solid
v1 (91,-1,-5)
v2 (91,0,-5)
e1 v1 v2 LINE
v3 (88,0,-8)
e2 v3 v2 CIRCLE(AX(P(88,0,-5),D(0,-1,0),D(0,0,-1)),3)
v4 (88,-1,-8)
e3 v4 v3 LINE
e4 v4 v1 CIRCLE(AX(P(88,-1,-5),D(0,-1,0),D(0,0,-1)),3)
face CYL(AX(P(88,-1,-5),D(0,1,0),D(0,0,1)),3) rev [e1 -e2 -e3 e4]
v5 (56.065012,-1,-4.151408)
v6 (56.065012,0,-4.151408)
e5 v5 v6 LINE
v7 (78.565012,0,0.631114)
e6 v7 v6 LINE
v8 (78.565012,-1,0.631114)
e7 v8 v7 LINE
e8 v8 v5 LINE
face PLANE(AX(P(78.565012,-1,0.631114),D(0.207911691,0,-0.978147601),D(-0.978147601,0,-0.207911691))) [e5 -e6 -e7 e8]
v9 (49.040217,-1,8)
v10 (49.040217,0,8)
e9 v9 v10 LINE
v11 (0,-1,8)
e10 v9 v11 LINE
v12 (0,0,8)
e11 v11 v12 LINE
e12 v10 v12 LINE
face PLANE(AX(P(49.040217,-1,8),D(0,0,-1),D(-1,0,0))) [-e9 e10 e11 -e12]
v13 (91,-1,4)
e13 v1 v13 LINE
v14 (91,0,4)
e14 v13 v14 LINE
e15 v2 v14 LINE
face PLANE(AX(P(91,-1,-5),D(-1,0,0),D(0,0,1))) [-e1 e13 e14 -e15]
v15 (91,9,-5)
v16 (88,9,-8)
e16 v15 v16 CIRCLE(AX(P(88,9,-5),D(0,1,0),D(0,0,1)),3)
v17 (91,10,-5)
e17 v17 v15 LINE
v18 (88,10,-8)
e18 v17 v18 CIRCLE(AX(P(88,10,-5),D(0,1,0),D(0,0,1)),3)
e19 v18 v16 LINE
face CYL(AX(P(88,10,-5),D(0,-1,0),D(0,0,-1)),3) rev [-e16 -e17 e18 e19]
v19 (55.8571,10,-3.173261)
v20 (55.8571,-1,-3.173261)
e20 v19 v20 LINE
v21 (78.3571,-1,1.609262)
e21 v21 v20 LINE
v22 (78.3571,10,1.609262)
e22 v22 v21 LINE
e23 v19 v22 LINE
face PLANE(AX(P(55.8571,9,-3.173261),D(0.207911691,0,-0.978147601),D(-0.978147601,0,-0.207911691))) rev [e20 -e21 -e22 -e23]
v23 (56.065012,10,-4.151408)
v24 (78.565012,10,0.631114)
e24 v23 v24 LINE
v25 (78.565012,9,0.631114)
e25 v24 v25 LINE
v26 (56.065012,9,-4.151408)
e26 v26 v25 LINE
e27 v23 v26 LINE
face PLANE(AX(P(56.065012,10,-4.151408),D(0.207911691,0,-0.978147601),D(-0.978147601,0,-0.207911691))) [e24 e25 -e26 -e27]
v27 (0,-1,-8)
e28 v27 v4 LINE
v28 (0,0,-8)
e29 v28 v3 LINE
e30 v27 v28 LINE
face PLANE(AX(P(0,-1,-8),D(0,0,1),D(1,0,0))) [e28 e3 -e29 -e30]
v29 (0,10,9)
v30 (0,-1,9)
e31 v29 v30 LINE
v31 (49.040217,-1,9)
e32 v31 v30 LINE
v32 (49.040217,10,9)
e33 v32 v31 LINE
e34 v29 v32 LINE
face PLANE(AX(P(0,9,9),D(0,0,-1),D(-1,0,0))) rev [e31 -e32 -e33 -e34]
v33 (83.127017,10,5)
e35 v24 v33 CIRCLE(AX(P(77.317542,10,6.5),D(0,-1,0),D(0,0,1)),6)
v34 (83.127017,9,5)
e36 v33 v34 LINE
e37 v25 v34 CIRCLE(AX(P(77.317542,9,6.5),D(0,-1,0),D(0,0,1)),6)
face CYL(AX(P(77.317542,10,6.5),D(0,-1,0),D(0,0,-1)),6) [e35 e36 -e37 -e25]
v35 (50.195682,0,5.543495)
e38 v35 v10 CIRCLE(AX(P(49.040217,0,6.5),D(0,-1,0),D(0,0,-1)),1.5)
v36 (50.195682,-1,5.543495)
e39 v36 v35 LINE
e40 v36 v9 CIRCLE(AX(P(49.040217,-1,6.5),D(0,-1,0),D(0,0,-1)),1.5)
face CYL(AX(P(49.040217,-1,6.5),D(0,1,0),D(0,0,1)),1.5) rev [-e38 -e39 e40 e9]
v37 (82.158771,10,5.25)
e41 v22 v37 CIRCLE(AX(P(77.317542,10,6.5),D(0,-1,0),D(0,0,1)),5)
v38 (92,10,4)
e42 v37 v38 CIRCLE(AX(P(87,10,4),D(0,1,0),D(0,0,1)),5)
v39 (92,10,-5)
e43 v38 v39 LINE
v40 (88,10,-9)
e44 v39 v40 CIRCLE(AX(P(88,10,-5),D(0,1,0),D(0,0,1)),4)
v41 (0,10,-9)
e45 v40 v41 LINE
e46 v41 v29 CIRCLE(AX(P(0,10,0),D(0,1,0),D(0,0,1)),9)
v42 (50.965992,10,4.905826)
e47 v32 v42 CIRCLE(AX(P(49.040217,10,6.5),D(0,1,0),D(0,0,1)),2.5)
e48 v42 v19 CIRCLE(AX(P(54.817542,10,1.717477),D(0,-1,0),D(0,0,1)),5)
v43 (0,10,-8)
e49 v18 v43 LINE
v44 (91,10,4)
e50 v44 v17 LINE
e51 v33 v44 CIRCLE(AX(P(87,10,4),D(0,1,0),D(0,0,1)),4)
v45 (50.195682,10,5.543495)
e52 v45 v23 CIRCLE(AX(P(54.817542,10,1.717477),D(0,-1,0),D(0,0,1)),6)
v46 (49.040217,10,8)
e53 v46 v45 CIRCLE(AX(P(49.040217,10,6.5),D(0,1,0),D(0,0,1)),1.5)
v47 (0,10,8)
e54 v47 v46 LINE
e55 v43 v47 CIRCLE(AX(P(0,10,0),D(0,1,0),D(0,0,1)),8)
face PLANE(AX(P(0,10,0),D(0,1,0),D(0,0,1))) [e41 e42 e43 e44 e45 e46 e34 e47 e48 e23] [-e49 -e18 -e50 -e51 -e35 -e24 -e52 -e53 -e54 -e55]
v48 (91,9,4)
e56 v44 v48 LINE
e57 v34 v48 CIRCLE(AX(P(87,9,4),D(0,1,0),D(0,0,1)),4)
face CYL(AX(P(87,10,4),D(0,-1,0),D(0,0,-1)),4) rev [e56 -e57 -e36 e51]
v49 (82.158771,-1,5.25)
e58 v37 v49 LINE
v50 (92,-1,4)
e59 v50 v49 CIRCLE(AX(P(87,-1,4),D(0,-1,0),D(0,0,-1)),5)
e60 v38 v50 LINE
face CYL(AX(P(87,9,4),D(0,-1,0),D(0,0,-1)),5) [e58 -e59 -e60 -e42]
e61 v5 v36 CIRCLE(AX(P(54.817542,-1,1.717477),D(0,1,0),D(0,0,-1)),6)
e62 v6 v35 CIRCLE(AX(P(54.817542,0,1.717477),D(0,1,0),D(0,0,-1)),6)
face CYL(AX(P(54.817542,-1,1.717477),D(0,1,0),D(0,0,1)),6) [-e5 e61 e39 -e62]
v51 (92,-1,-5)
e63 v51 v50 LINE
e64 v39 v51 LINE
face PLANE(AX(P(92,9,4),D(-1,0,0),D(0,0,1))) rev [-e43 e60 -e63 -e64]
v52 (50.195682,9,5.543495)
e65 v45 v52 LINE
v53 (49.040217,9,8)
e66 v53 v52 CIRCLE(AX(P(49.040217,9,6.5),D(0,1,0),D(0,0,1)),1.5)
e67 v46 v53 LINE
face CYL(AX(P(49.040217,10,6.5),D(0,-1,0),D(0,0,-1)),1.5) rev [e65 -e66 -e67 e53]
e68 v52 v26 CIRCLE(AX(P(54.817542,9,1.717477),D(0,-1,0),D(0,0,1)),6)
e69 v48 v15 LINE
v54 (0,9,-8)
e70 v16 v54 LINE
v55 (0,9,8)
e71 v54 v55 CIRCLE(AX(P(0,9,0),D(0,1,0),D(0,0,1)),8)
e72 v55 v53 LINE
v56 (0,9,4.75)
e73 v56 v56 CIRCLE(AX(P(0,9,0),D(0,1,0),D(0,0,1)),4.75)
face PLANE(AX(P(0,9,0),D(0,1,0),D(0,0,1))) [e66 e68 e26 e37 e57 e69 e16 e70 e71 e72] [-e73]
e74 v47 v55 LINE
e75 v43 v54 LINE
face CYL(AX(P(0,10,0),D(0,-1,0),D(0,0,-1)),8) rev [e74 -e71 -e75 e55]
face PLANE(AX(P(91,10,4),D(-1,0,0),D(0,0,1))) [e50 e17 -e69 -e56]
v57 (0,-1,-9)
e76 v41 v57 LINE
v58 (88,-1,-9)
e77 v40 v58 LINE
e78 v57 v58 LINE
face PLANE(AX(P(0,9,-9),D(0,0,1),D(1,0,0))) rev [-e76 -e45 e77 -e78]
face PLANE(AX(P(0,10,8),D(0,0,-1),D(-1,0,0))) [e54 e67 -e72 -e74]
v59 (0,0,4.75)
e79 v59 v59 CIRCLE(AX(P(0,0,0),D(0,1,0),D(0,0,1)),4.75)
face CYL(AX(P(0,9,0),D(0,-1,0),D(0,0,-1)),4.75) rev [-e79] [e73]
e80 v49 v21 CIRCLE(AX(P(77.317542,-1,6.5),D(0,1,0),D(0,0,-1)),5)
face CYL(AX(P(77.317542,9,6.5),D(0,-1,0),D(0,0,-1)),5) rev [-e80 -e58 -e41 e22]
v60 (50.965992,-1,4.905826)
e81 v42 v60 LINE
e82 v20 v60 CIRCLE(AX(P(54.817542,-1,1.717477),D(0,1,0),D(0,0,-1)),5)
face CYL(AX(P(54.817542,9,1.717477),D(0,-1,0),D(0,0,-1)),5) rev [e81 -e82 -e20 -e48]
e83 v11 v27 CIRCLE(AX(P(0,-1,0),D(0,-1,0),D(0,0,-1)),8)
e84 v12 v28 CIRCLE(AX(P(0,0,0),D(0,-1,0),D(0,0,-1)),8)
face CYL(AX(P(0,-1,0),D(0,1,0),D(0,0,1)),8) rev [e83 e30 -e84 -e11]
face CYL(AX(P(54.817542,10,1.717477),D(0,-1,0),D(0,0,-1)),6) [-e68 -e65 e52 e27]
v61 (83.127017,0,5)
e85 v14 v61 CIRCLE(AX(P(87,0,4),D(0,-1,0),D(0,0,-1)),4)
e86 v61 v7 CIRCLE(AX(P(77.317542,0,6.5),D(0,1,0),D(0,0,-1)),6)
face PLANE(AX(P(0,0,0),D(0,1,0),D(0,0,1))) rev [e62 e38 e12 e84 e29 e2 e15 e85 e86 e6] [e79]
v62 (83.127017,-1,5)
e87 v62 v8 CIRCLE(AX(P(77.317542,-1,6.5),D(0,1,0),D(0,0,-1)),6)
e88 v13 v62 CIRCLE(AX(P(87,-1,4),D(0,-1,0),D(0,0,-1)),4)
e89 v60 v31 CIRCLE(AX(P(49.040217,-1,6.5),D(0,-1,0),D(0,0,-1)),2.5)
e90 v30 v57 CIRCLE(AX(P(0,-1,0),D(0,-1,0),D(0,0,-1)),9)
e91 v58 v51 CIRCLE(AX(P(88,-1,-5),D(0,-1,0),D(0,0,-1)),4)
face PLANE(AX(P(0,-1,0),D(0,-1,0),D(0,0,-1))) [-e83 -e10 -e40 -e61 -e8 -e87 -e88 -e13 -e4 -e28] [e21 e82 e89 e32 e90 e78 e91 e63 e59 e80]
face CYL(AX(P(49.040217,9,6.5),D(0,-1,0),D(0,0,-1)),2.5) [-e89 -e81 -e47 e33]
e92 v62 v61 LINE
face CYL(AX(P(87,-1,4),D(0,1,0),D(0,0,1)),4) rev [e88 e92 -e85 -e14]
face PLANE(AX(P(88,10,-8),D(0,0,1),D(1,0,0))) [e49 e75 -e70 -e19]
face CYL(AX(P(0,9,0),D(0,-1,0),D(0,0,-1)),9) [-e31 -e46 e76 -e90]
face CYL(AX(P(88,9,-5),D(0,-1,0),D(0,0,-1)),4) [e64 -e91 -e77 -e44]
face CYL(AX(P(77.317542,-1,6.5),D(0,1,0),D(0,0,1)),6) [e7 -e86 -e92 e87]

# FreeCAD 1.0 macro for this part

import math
import FreeCAD as App
import Part
import Sketcher

V = App.Vector
Q = App.Units.Quantity

doc = App.newDocument("Part")
body = doc.addObject("PartDesign::Body", "Body")

# Sketch on XZ plane
sketch1 = body.newObject("Sketcher::SketchObject", "Sketch")
sketch1.AttachmentSupport = (doc.getObject("XZ_Plane"), [""])
sketch1.MapMode = "FlatFace"
sketch1.addGeometry([
    Part.LineSegment(V(55.8571, -3.173261, 0), V(78.3571, 1.609262, 0)),  # 0
    Part.ArcOfCircle(Part.Circle(V(77.317542, 6.5, 0), V(0, 0, 1), 5), math.radians(-78), math.radians(-14.477512)),  # 1
    Part.ArcOfCircle(Part.Circle(V(87, 4, 0), V(0, 0, 1), 5), math.radians(0), math.radians(165.522488)),  # 2
    Part.LineSegment(V(92, 4, 0), V(92, -5, 0)),  # 3
    Part.ArcOfCircle(Part.Circle(V(88, -5, 0), V(0, 0, 1), 4), math.radians(-90), math.radians(0)),  # 4
    Part.LineSegment(V(88, -9, 0), V(0, -9, 0)),  # 5
    Part.ArcOfCircle(Part.Circle(V(0, 0, 0), V(0, 0, 1), 9), math.radians(90), math.radians(270)),  # 6
    Part.LineSegment(V(0, 9, 0), V(49.040217, 9, 0)),  # 7
    Part.ArcOfCircle(Part.Circle(V(49.040217, 6.5, 0), V(0, 0, 1), 2.5), math.radians(-39.618272), math.radians(90)),  # 8
    Part.ArcOfCircle(Part.Circle(V(54.817542, 1.717477, 0), V(0, 0, 1), 5), math.radians(140.381728), math.radians(282)),  # 9
    Part.Circle(V(0, 0, 0), V(0, 0, 1), 4.75),  # 10
], False)
sketch1.addConstraint([
    Sketcher.Constraint("Tangent", 0, 2, 1, 1),
    Sketcher.Constraint("Tangent", 1, 2, 2, 2),
    Sketcher.Constraint("Tangent", 2, 1, 3, 1),
    Sketcher.Constraint("Tangent", 3, 2, 4, 2),
    Sketcher.Constraint("Tangent", 4, 1, 5, 1),
    Sketcher.Constraint("Tangent", 5, 2, 6, 2),
    Sketcher.Constraint("Tangent", 6, 1, 7, 1),
    Sketcher.Constraint("Tangent", 7, 2, 8, 2),
    Sketcher.Constraint("Tangent", 8, 1, 9, 1),
    Sketcher.Constraint("Tangent", 9, 2, 0, 1),
    Sketcher.Constraint("Vertical", 3),
    Sketcher.Constraint("Horizontal", 5),
    Sketcher.Constraint("Horizontal", 7),
    Sketcher.Constraint("Coincident", 6, 3, -1, 1),
    Sketcher.Constraint("Coincident", 10, 3, -1, 1),
    Sketcher.Constraint("Equal", 1, 2),
    Sketcher.Constraint("Equal", 2, 9),
    Sketcher.Constraint("Horizontal", 1, 3, 8, 3),
    Sketcher.Constraint("Radius", 1, 5.0),
    Sketcher.Constraint("Radius", 4, 4.0),
    Sketcher.Constraint("Radius", 6, 9.0),
    Sketcher.Constraint("Diameter", 10, 9.5),
    Sketcher.Constraint("Radius", 8, 2.5),
    Sketcher.Constraint("DistanceX", 5, 2, 5, 1, 88.0),
    Sketcher.Constraint("DistanceY", 3, 2, 3, 1, 9.0),
    Sketcher.Constraint("Angle", 0, Q("12 deg")),
    Sketcher.Constraint("DistanceX", 9, 3, 1, 3, 22.5),
])
pad1 = body.newObject("PartDesign::Pad", "Pad")
pad1.Profile = sketch1
pad1.Length = 9
pad1.Reversed = True

# Sketch on XZ plane
sketch2 = body.newObject("Sketcher::SketchObject", "Sketch001")
sketch2.AttachmentSupport = (doc.getObject("XZ_Plane"), [""])
sketch2.MapMode = "FlatFace"
sketch2.AttachmentOffset = App.Placement(V(0, 0, -9), App.Rotation())
sketch2.addGeometry([
    Part.LineSegment(V(0, 9, 0), V(49.040217, 9, 0)),  # 0
    Part.ArcOfCircle(Part.Circle(V(49.040217, 6.5, 0), V(0, 0, 1), 2.5), math.radians(-39.618272), math.radians(90)),  # 1
    Part.ArcOfCircle(Part.Circle(V(54.817542, 1.717477, 0), V(0, 0, 1), 5), math.radians(140.381728), math.radians(282)),  # 2
    Part.LineSegment(V(55.8571, -3.173261, 0), V(78.3571, 1.609262, 0)),  # 3
    Part.ArcOfCircle(Part.Circle(V(77.317542, 6.5, 0), V(0, 0, 1), 5), math.radians(-78), math.radians(-14.477512)),  # 4
    Part.ArcOfCircle(Part.Circle(V(87, 4, 0), V(0, 0, 1), 5), math.radians(0), math.radians(165.522488)),  # 5
    Part.LineSegment(V(92, 4, 0), V(92, -5, 0)),  # 6
    Part.ArcOfCircle(Part.Circle(V(88, -5, 0), V(0, 0, 1), 4), math.radians(-90), math.radians(0)),  # 7
    Part.LineSegment(V(88, -9, 0), V(0, -9, 0)),  # 8
    Part.ArcOfCircle(Part.Circle(V(0, 0, 0), V(0, 0, 1), 9), math.radians(90), math.radians(270)),  # 9
    Part.LineSegment(V(0, -8, 0), V(88, -8, 0)),  # 10
    Part.ArcOfCircle(Part.Circle(V(88, -5, 0), V(0, 0, 1), 3), math.radians(-90), math.radians(0)),  # 11
    Part.LineSegment(V(91, -5, 0), V(91, 4, 0)),  # 12
    Part.ArcOfCircle(Part.Circle(V(87, 4, 0), V(0, 0, 1), 4), math.radians(0), math.radians(165.522488)),  # 13
    Part.ArcOfCircle(Part.Circle(V(77.317542, 6.5, 0), V(0, 0, 1), 6), math.radians(-78), math.radians(-14.477512)),  # 14
    Part.LineSegment(V(78.565012, 0.631114, 0), V(56.065012, -4.151408, 0)),  # 15
    Part.ArcOfCircle(Part.Circle(V(54.817542, 1.717477, 0), V(0, 0, 1), 6), math.radians(140.381728), math.radians(282)),  # 16
    Part.ArcOfCircle(Part.Circle(V(49.040217, 6.5, 0), V(0, 0, 1), 1.5), math.radians(-39.618272), math.radians(90)),  # 17
    Part.LineSegment(V(49.040217, 8, 0), V(0, 8, 0)),  # 18
    Part.ArcOfCircle(Part.Circle(V(0, 0, 0), V(0, 0, 1), 8), math.radians(90), math.radians(270)),  # 19
], False)
sketch2.addConstraint([
    Sketcher.Constraint("Tangent", 0, 2, 1, 2),
    Sketcher.Constraint("Tangent", 1, 1, 2, 1),
    Sketcher.Constraint("Tangent", 2, 2, 3, 1),
    Sketcher.Constraint("Tangent", 3, 2, 4, 1),
    Sketcher.Constraint("Tangent", 4, 2, 5, 2),
    Sketcher.Constraint("Tangent", 5, 1, 6, 1),
    Sketcher.Constraint("Tangent", 6, 2, 7, 2),
    Sketcher.Constraint("Tangent", 7, 1, 8, 1),
    Sketcher.Constraint("Tangent", 8, 2, 9, 2),
    Sketcher.Constraint("Tangent", 9, 1, 0, 1),
    Sketcher.Constraint("Tangent", 10, 2, 11, 1),
    Sketcher.Constraint("Tangent", 11, 2, 12, 1),
    Sketcher.Constraint("Tangent", 12, 2, 13, 1),
    Sketcher.Constraint("Tangent", 13, 2, 14, 2),
    Sketcher.Constraint("Tangent", 14, 1, 15, 1),
    Sketcher.Constraint("Tangent", 15, 2, 16, 2),
    Sketcher.Constraint("Tangent", 16, 1, 17, 1),
    Sketcher.Constraint("Tangent", 17, 2, 18, 1),
    Sketcher.Constraint("Tangent", 18, 2, 19, 1),
    Sketcher.Constraint("Tangent", 19, 2, 10, 1),
    Sketcher.Constraint("Horizontal", 0),
    Sketcher.Constraint("Vertical", 6),
    Sketcher.Constraint("Horizontal", 8),
    Sketcher.Constraint("Horizontal", 10),
    Sketcher.Constraint("Vertical", 12),
    Sketcher.Constraint("Horizontal", 18),
    Sketcher.Constraint("Coincident", 9, 3, -1, 1),
    Sketcher.Constraint("Coincident", 19, 3, -1, 1),
    Sketcher.Constraint("Coincident", 11, 3, 7, 3),
    Sketcher.Constraint("Coincident", 13, 3, 5, 3),
    Sketcher.Constraint("Coincident", 14, 3, 4, 3),
    Sketcher.Constraint("Coincident", 16, 3, 2, 3),
    Sketcher.Constraint("Coincident", 17, 3, 1, 3),
    Sketcher.Constraint("Equal", 2, 4),
    Sketcher.Constraint("Equal", 4, 5),
    Sketcher.Constraint("Equal", 7, 13),
    Sketcher.Constraint("Horizontal", 1, 3, 4, 3),
    Sketcher.Constraint("Radius", 2, 5.0),
    Sketcher.Constraint("Radius", 7, 4.0),
    Sketcher.Constraint("Radius", 9, 9.0),
    Sketcher.Constraint("Radius", 1, 2.5),
    Sketcher.Constraint("DistanceX", 8, 2, 8, 1, 88.0),
    Sketcher.Constraint("DistanceY", 6, 2, 6, 1, 9.0),
    Sketcher.Constraint("Angle", 3, Q("12 deg")),
    Sketcher.Constraint("DistanceX", 2, 3, 4, 3, 22.5),
])
pad2 = body.newObject("PartDesign::Pad", "Pad001")
pad2.Profile = sketch2
pad2.Length = 1
pad2.Reversed = True

# Sketch on XZ plane
sketch3 = body.newObject("Sketcher::SketchObject", "Sketch002")
sketch3.AttachmentSupport = (doc.getObject("XZ_Plane"), [""])
sketch3.MapMode = "FlatFace"
sketch3.addGeometry([
    Part.LineSegment(V(0, -9, 0), V(88, -9, 0)),  # 0
    Part.ArcOfCircle(Part.Circle(V(88, -5, 0), V(0, 0, 1), 4), math.radians(-90), math.radians(0)),  # 1
    Part.LineSegment(V(92, -5, 0), V(92, 4, 0)),  # 2
    Part.ArcOfCircle(Part.Circle(V(87, 4, 0), V(0, 0, 1), 5), math.radians(0), math.radians(165.522488)),  # 3
    Part.ArcOfCircle(Part.Circle(V(77.317542, 6.5, 0), V(0, 0, 1), 5), math.radians(-78), math.radians(-14.477512)),  # 4
    Part.LineSegment(V(78.3571, 1.609262, 0), V(55.8571, -3.173261, 0)),  # 5
    Part.ArcOfCircle(Part.Circle(V(54.817542, 1.717477, 0), V(0, 0, 1), 5), math.radians(140.381728), math.radians(282)),  # 6
    Part.ArcOfCircle(Part.Circle(V(49.040217, 6.5, 0), V(0, 0, 1), 2.5), math.radians(-39.618272), math.radians(90)),  # 7
    Part.LineSegment(V(49.040217, 9, 0), V(0, 9, 0)),  # 8
    Part.ArcOfCircle(Part.Circle(V(0, 0, 0), V(0, 0, 1), 9), math.radians(90), math.radians(270)),  # 9
    Part.LineSegment(V(0, 8, 0), V(49.040217, 8, 0)),  # 10
    Part.ArcOfCircle(Part.Circle(V(49.040217, 6.5, 0), V(0, 0, 1), 1.5), math.radians(-39.618272), math.radians(90)),  # 11
    Part.ArcOfCircle(Part.Circle(V(54.817542, 1.717477, 0), V(0, 0, 1), 6), math.radians(140.381728), math.radians(282)),  # 12
    Part.LineSegment(V(56.065012, -4.151408, 0), V(78.565012, 0.631114, 0)),  # 13
    Part.ArcOfCircle(Part.Circle(V(77.317542, 6.5, 0), V(0, 0, 1), 6), math.radians(-78), math.radians(-14.477512)),  # 14
    Part.ArcOfCircle(Part.Circle(V(87, 4, 0), V(0, 0, 1), 4), math.radians(0), math.radians(165.522488)),  # 15
    Part.LineSegment(V(91, 4, 0), V(91, -5, 0)),  # 16
    Part.ArcOfCircle(Part.Circle(V(88, -5, 0), V(0, 0, 1), 3), math.radians(-90), math.radians(0)),  # 17
    Part.LineSegment(V(88, -8, 0), V(0, -8, 0)),  # 18
    Part.ArcOfCircle(Part.Circle(V(0, 0, 0), V(0, 0, 1), 8), math.radians(90), math.radians(270)),  # 19
], False)
sketch3.addConstraint([
    Sketcher.Constraint("Tangent", 0, 2, 1, 1),
    Sketcher.Constraint("Tangent", 1, 2, 2, 1),
    Sketcher.Constraint("Tangent", 2, 2, 3, 1),
    Sketcher.Constraint("Tangent", 3, 2, 4, 2),
    Sketcher.Constraint("Tangent", 4, 1, 5, 1),
    Sketcher.Constraint("Tangent", 5, 2, 6, 2),
    Sketcher.Constraint("Tangent", 6, 1, 7, 1),
    Sketcher.Constraint("Tangent", 7, 2, 8, 1),
    Sketcher.Constraint("Tangent", 8, 2, 9, 1),
    Sketcher.Constraint("Tangent", 9, 2, 0, 1),
    Sketcher.Constraint("Tangent", 10, 2, 11, 2),
    Sketcher.Constraint("Tangent", 11, 1, 12, 1),
    Sketcher.Constraint("Tangent", 12, 2, 13, 1),
    Sketcher.Constraint("Tangent", 13, 2, 14, 1),
    Sketcher.Constraint("Tangent", 14, 2, 15, 2),
    Sketcher.Constraint("Tangent", 15, 1, 16, 1),
    Sketcher.Constraint("Tangent", 16, 2, 17, 2),
    Sketcher.Constraint("Tangent", 17, 1, 18, 1),
    Sketcher.Constraint("Tangent", 18, 2, 19, 2),
    Sketcher.Constraint("Tangent", 19, 1, 10, 1),
    Sketcher.Constraint("Horizontal", 0),
    Sketcher.Constraint("Vertical", 2),
    Sketcher.Constraint("Horizontal", 8),
    Sketcher.Constraint("Horizontal", 10),
    Sketcher.Constraint("Vertical", 16),
    Sketcher.Constraint("Horizontal", 18),
    Sketcher.Constraint("Coincident", 9, 3, -1, 1),
    Sketcher.Constraint("Coincident", 19, 3, -1, 1),
    Sketcher.Constraint("Coincident", 11, 3, 7, 3),
    Sketcher.Constraint("Coincident", 12, 3, 6, 3),
    Sketcher.Constraint("Coincident", 14, 3, 4, 3),
    Sketcher.Constraint("Coincident", 15, 3, 3, 3),
    Sketcher.Constraint("Coincident", 17, 3, 1, 3),
    Sketcher.Constraint("Equal", 3, 4),
    Sketcher.Constraint("Equal", 4, 6),
    Sketcher.Constraint("Equal", 1, 15),
    Sketcher.Constraint("Horizontal", 4, 3, 7, 3),
    Sketcher.Constraint("Radius", 1, 4.0),
    Sketcher.Constraint("Radius", 3, 5.0),
    Sketcher.Constraint("Radius", 9, 9.0),
    Sketcher.Constraint("Radius", 7, 2.5),
    Sketcher.Constraint("DistanceX", 0, 1, 0, 2, 88.0),
    Sketcher.Constraint("DistanceY", 2, 1, 2, 2, 9.0),
    Sketcher.Constraint("Angle", 5, Q("-168 deg")),
    Sketcher.Constraint("DistanceX", 6, 3, 4, 3, 22.5),
])
pad3 = body.newObject("PartDesign::Pad", "Pad002")
pad3.Profile = sketch3
pad3.Length = 1

doc.recompute()
